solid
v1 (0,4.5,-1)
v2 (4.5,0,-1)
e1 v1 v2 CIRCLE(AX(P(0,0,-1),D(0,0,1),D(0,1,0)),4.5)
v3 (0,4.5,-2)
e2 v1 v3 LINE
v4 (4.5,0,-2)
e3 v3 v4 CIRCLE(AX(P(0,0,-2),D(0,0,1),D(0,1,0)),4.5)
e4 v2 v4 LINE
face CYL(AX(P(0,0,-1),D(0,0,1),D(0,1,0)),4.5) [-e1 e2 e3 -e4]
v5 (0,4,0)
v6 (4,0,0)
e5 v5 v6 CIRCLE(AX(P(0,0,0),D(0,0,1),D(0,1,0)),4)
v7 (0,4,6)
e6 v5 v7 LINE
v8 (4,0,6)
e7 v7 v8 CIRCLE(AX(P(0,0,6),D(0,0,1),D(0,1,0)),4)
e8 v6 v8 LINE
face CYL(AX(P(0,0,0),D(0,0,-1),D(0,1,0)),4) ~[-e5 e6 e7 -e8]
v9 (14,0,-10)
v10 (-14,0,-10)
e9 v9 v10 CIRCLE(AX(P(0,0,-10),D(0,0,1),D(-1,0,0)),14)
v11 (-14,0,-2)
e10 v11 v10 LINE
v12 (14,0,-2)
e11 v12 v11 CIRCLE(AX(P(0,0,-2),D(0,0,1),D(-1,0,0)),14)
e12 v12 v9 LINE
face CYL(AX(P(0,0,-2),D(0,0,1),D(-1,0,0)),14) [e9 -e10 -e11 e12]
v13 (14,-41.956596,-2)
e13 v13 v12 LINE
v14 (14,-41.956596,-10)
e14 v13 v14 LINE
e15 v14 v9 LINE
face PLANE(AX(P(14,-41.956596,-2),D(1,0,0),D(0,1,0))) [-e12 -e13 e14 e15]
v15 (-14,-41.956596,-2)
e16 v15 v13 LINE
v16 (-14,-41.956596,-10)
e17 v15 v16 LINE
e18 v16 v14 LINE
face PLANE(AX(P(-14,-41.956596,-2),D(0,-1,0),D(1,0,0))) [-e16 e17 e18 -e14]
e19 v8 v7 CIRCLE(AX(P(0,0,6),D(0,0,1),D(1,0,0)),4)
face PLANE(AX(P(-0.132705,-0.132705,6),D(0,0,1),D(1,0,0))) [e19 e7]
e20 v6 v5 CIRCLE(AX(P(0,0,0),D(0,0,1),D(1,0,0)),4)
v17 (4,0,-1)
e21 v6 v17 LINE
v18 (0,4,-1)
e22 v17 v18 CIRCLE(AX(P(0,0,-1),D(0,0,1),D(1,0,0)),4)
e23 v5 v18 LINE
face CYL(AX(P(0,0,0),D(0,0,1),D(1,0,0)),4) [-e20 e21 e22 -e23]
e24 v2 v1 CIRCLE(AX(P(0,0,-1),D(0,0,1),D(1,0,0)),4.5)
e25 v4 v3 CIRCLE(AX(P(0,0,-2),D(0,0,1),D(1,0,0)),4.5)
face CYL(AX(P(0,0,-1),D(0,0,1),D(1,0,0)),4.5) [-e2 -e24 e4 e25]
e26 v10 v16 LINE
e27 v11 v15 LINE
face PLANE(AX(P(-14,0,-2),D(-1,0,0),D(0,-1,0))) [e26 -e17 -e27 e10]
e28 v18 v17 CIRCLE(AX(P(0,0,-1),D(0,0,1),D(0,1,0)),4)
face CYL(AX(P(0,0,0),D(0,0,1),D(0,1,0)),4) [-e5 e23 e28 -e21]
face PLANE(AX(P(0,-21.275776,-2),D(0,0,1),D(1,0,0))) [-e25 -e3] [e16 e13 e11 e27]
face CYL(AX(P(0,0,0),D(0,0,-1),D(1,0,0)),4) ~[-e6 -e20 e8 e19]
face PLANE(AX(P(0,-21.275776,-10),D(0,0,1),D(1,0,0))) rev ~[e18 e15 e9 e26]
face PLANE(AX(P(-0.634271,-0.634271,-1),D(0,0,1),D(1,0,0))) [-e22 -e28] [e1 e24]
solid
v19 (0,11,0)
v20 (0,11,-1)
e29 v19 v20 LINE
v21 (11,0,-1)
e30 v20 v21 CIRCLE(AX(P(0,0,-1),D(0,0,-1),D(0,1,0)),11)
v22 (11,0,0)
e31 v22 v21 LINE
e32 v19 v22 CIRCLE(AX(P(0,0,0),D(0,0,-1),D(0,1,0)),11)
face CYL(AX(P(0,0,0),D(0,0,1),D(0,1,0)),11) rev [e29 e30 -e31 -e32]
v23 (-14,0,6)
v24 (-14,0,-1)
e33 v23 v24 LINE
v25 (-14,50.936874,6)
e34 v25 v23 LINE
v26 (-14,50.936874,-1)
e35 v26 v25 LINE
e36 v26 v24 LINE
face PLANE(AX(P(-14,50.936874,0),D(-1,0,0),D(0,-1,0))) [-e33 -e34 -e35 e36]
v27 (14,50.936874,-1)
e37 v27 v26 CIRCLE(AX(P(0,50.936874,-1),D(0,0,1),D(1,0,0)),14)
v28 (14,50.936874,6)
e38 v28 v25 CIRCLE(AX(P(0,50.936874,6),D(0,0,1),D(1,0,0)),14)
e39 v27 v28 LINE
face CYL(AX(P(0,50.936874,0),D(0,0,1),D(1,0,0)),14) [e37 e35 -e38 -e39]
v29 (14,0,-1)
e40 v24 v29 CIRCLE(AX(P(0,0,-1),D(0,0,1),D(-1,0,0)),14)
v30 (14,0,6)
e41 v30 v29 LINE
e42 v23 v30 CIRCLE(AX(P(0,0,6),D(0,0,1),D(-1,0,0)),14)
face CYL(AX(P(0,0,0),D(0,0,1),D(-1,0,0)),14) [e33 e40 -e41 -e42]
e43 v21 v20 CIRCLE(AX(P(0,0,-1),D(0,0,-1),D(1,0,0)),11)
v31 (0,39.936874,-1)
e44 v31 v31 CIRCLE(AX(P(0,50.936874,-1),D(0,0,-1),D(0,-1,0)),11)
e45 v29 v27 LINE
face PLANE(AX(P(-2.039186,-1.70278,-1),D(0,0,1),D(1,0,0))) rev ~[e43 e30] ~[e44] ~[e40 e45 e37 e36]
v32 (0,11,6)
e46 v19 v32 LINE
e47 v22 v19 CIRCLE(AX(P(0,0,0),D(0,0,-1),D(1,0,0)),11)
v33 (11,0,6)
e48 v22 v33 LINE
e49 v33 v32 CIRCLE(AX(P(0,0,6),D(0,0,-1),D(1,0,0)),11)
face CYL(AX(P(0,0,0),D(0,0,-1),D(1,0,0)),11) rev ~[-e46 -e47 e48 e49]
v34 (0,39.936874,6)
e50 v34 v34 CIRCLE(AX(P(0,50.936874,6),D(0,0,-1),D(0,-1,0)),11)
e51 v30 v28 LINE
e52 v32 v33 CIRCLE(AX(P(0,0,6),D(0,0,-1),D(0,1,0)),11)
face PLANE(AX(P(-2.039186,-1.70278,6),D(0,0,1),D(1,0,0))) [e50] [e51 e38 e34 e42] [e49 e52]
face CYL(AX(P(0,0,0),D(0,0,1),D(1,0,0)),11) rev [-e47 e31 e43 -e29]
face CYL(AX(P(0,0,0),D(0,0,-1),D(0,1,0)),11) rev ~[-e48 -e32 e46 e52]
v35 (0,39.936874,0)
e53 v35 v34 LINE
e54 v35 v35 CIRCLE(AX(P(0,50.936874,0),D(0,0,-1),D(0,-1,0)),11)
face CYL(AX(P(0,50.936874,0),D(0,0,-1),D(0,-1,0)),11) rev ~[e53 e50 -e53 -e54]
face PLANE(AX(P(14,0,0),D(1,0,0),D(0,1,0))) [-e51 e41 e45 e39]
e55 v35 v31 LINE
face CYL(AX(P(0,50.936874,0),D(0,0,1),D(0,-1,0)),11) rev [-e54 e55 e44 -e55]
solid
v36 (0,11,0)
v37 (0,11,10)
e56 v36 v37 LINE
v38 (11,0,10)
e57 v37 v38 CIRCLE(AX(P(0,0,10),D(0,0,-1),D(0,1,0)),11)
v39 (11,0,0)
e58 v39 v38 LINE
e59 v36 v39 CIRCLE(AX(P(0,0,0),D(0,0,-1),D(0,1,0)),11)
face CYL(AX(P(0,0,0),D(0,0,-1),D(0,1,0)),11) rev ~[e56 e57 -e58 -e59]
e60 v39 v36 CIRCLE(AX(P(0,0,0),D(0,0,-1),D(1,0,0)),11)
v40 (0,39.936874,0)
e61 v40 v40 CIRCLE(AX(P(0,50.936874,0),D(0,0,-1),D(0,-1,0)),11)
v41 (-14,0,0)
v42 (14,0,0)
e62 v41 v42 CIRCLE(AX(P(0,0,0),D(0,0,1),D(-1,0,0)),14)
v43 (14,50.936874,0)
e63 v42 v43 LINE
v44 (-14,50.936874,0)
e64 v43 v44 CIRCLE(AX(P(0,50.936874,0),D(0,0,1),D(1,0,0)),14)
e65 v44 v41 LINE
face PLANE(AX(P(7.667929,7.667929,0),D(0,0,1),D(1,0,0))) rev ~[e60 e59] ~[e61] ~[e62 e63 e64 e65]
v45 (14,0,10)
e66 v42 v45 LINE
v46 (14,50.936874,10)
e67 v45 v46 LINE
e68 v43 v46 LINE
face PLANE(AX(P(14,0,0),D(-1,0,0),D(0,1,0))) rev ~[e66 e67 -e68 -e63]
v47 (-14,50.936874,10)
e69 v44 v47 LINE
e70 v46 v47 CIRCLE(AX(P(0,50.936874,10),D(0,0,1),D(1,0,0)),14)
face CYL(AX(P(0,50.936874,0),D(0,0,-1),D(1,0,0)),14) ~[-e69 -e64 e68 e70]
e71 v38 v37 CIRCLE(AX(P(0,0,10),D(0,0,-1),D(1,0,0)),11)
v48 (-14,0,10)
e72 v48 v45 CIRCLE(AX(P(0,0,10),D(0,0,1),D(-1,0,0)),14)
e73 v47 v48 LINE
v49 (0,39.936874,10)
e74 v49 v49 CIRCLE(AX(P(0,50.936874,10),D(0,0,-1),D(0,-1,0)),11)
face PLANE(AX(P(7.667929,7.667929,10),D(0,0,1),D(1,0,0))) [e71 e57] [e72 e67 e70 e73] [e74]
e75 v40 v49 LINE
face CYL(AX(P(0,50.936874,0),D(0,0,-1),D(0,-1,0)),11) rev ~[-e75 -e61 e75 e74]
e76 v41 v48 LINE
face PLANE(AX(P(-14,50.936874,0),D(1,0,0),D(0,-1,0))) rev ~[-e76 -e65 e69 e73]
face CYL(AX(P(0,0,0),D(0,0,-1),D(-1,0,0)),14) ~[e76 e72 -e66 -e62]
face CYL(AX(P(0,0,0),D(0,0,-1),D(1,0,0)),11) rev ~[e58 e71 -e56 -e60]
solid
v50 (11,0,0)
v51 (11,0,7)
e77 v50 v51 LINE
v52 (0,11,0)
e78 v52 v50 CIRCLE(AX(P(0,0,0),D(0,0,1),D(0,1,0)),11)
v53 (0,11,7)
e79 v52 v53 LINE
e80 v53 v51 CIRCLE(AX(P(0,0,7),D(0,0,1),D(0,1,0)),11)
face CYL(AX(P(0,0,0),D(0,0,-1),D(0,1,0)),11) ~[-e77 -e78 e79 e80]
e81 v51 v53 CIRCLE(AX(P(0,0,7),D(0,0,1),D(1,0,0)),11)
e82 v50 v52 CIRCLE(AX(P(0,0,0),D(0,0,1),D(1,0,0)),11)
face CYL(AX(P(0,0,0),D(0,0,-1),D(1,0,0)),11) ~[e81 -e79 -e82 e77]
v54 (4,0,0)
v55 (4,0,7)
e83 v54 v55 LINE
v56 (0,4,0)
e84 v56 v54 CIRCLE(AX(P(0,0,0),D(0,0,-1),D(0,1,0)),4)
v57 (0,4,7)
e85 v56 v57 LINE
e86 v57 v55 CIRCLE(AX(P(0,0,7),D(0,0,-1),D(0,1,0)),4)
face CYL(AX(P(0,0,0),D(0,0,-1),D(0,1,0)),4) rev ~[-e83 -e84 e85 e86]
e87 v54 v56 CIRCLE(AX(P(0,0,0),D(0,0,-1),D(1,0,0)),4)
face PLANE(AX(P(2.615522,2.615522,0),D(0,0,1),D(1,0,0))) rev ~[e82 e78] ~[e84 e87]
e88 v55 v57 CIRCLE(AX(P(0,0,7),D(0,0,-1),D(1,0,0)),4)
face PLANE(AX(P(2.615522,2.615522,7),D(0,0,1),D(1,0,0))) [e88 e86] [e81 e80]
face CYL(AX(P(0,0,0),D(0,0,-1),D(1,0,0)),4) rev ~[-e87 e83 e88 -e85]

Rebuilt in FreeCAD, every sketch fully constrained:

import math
import FreeCAD as App
import Part
import Sketcher

V = App.Vector

doc = App.newDocument("Part")
params = doc.addObject("Spreadsheet::Sheet", "Params")
for row, (alias, value) in enumerate([
    ("sketch1_radius", "11 mm"),
    ("sketch1_radius2", "4 mm"),
    ("pad1_length", "7 mm"),
    ("sketch2_diameter", "22 mm"),
    ("sketch2_radius", "14 mm"),
    ("pad2_length", "10 mm"),
    ("sketch3_radius", "4 mm"),
    ("pad3_length", "6 mm"),
    ("pad3_length2", "1 mm"),
    ("sketch4_radius", "4.5 mm"),
    ("pad4_length", "6.2 mm"),
    ("sketch5_diameter", "28 mm"),
    ("pad5_length", "8 mm"),
    ("sketch6_radius", "14 mm"),
    ("pad6_length", "8 mm"),
    ("sketch7_diameter", "22 mm"),
    ("sketch7_radius", "14 mm"),
    ("pad7_length", "6 mm"),
    ("pad7_length2", "1 mm"),
], start=1):
    params.set(f"A{row}", alias)
    params.set(f"B{row}", "=" + value)
    params.setAlias(f"B{row}", alias)

body = doc.addObject("PartDesign::Body", "Body")

# Sketch on XY plane
sketch1 = doc.addObject("Sketcher::SketchObject", "Sketch")
body.addObject(sketch1)
sketch1.AttachmentSupport = (doc.XY_Plane, [""])
sketch1.MapMode = "FlatFace"
sketch1.addGeometry([
    Part.ArcOfCircle(Part.Circle(V(0, 0, 0), V(0, 0, 1), 11), math.radians(0), math.radians(90)),
    Part.ArcOfCircle(Part.Circle(V(0, 0, 0), V(0, 0, 1), 11), math.radians(90), math.radians(360)),
    Part.ArcOfCircle(Part.Circle(V(0, 0, 0), V(0, 0, 1), 4), math.radians(0), math.radians(90)),
    Part.ArcOfCircle(Part.Circle(V(0, 0, 0), V(0, 0, 1), 4), math.radians(90), math.radians(360)),
], False)
sketch1.addConstraint([
    Sketcher.Constraint("Tangent", 0, 1, 1, 2),
    Sketcher.Constraint("Coincident", 1, 1, 0, 2),
    Sketcher.Constraint("Tangent", 2, 1, 3, 2),
    Sketcher.Constraint("Coincident", 3, 1, 2, 2),
    Sketcher.Constraint("Coincident", 0, 3, -1, 1),
    Sketcher.Constraint("Coincident", 2, 3, -1, 1),
    Sketcher.Constraint("PointOnObject", 0, 1, -1),
    Sketcher.Constraint("PointOnObject", 1, 1, -2),
    Sketcher.Constraint("PointOnObject", 2, 1, -1),
    Sketcher.Constraint("PointOnObject", 3, 1, -2),
    Sketcher.Constraint("Radius", 0, 11.0),
    Sketcher.Constraint("Radius", 2, 4.0),
])
sketch1.setExpression("Constraints[10]", "Params.sketch1_radius")
sketch1.setExpression("Constraints[11]", "Params.sketch1_radius2")
pad1 = doc.addObject("PartDesign::Pad", "Pad")
body.addObject(pad1)
pad1.Profile = sketch1
pad1.setExpression("Length", "Params.pad1_length")
body2 = doc.addObject("PartDesign::Body", "Body001")

# Sketch on XY plane
sketch2 = doc.addObject("Sketcher::SketchObject", "Sketch001")
body2.addObject(sketch2)
sketch2.AttachmentSupport = (doc.getObject("XY_Plane001"), [""])
sketch2.MapMode = "FlatFace"
sketch2.addGeometry([
    Part.ArcOfCircle(Part.Circle(V(0, 51, 0), V(0, 0, 1), 14), math.radians(0), math.radians(180)),  # 0
    Part.LineSegment(V(-14, 51, 0), V(-14, 0, 0)),  # 1
    Part.ArcOfCircle(Part.Circle(V(0, 0, 0), V(0, 0, 1), 14), math.radians(180), math.radians(360)),  # 2
    Part.LineSegment(V(14, 0, 0), V(14, 51, 0)),  # 3
    Part.ArcOfCircle(Part.Circle(V(0, 0, 0), V(0, 0, 1), 11), math.radians(0), math.radians(90)),  # 4
    Part.ArcOfCircle(Part.Circle(V(0, 0, 0), V(0, 0, 1), 11), math.radians(90), math.radians(360)),  # 5
    Part.Circle(V(0, 51, 0), V(0, 0, 1), 11),  # 6
], False)
sketch2.addConstraint([
    Sketcher.Constraint("Tangent", 0, 2, 1, 1),
    Sketcher.Constraint("Tangent", 1, 2, 2, 1),
    Sketcher.Constraint("Tangent", 2, 2, 3, 1),
    Sketcher.Constraint("Tangent", 3, 2, 0, 1),
    Sketcher.Constraint("Tangent", 4, 1, 5, 2),
    Sketcher.Constraint("Coincident", 5, 1, 4, 2),
    Sketcher.Constraint("Vertical", 1),
    Sketcher.Constraint("Vertical", 3),
    Sketcher.Constraint("Coincident", 2, 3, -1, 1),
    Sketcher.Constraint("Coincident", 4, 3, -1, 1),
    Sketcher.Constraint("Coincident", 6, 3, 0, 3),
    Sketcher.Constraint("Equal", 5, 6),
    Sketcher.Constraint("PointOnObject", 4, 1, -1),
    Sketcher.Constraint("PointOnObject", 5, 1, -2),
    Sketcher.Constraint("Diameter", 6, 22.0),
    Sketcher.Constraint("Radius", 0, 14.0),
    Sketcher.Constraint("DistanceY", 1, 2, 1, 1, 50.936874),
])
sketch2.setExpression("Constraints[14]", "Params.sketch2_diameter")
sketch2.setExpression("Constraints[15]", "Params.sketch2_radius")
pad2 = doc.addObject("PartDesign::Pad", "Pad001")
body2.addObject(pad2)
pad2.Profile = sketch2
pad2.setExpression("Length", "Params.pad2_length")
body3 = doc.addObject("PartDesign::Body", "Body002")

# Sketch on XY plane
sketch3 = doc.addObject("Sketcher::SketchObject", "Sketch002")
body3.addObject(sketch3)
sketch3.AttachmentSupport = (doc.getObject("XY_Plane002"), [""])
sketch3.MapMode = "FlatFace"
sketch3.addGeometry([
    Part.ArcOfCircle(Part.Circle(V(0, 0, 0), V(0, 0, 1), 4), math.radians(90), math.radians(360)),
    Part.ArcOfCircle(Part.Circle(V(0, 0, 0), V(0, 0, 1), 4), math.radians(0), math.radians(90)),
], False)
sketch3.addConstraint([
    Sketcher.Constraint("Tangent", 0, 1, 1, 2),
    Sketcher.Constraint("Coincident", 1, 1, 0, 2),
    Sketcher.Constraint("Coincident", 0, 3, -1, 1),
    Sketcher.Constraint("PointOnObject", 0, 1, -2),
    Sketcher.Constraint("PointOnObject", 1, 1, -1),
    Sketcher.Constraint("Radius", 0, 4.0),
])
sketch3.setExpression("Constraints[5]", "Params.sketch3_radius")
pad3 = doc.addObject("PartDesign::Pad", "Pad002")
body3.addObject(pad3)
pad3.Profile = sketch3
pad3.Type = "TwoLengths"
pad3.setExpression("Length", "Params.pad3_length")
pad3.setExpression("Length2", "Params.pad3_length2")

# Sketch on XY plane
sketch4 = doc.addObject("Sketcher::SketchObject", "Sketch003")
body3.addObject(sketch4)
sketch4.AttachmentSupport = (doc.getObject("XY_Plane002"), [""])
sketch4.MapMode = "FlatFace"
sketch4.AttachmentOffset = App.Placement(V(0, 0, -1), App.Rotation())
sketch4.addGeometry([
    Part.ArcOfCircle(Part.Circle(V(0, 0, 0), V(0, 0, 1), 4.5), math.radians(90), math.radians(360)),
    Part.ArcOfCircle(Part.Circle(V(0, 0, 0), V(0, 0, 1), 4.5), math.radians(0), math.radians(90)),
], False)
sketch4.addConstraint([
    Sketcher.Constraint("Tangent", 0, 1, 1, 2),
    Sketcher.Constraint("Coincident", 1, 1, 0, 2),
    Sketcher.Constraint("Coincident", 0, 3, -1, 1),
    Sketcher.Constraint("PointOnObject", 0, 1, -2),
    Sketcher.Constraint("PointOnObject", 1, 1, -1),
    Sketcher.Constraint("Radius", 0, 4.5),
])
sketch4.setExpression("Constraints[5]", "Params.sketch4_radius")
pad4 = doc.addObject("PartDesign::Pad", "Pad003")
body3.addObject(pad4)
pad4.Profile = sketch4
pad4.setExpression("Length", "Params.pad4_length")
pad4.Reversed = True

# Sketch on XY plane
sketch5 = doc.addObject("Sketcher::SketchObject", "Sketch004")
body3.addObject(sketch5)
sketch5.AttachmentSupport = (doc.getObject("XY_Plane002"), [""])
sketch5.MapMode = "FlatFace"
sketch5.AttachmentOffset = App.Placement(V(0, 0, -2), App.Rotation())
sketch5.addGeometry(Part.Circle(V(0, 0, 0), V(0, 0, 1), 14), False)
sketch5.addConstraint([
    Sketcher.Constraint("Coincident", 0, 3, -1, 1),
    Sketcher.Constraint("Diameter", 0, 28.0),
])
sketch5.setExpression("Constraints[1]", "Params.sketch5_diameter")
pad5 = doc.addObject("PartDesign::Pad", "Pad004")
body3.addObject(pad5)
pad5.Profile = sketch5
pad5.setExpression("Length", "Params.pad5_length")
pad5.Reversed = True

# Sketch on XY plane
sketch6 = doc.addObject("Sketcher::SketchObject", "Sketch005")
body3.addObject(sketch6)
sketch6.AttachmentSupport = (doc.getObject("XY_Plane002"), [""])
sketch6.MapMode = "FlatFace"
sketch6.AttachmentOffset = App.Placement(V(0, 0, -2), App.Rotation())
sketch6.addGeometry([
    Part.LineSegment(V(14, -42, 0), V(14, 0, 0)),
    Part.ArcOfCircle(Part.Circle(V(0, 0, 0), V(0, 0, 1), 14), math.radians(180), math.radians(360)),
    Part.LineSegment(V(-14, 0, 0), V(-14, -42, 0)),
    Part.LineSegment(V(-14, -42, 0), V(14, -42, 0)),
], False)
sketch6.addConstraint([
    Sketcher.Constraint("Tangent", 0, 2, 1, 2),
    Sketcher.Constraint("Tangent", 1, 1, 2, 1),
    Sketcher.Constraint("Coincident", 2, 2, 3, 1),
    Sketcher.Constraint("Coincident", 3, 2, 0, 1),
    Sketcher.Constraint("Vertical", 0),
    Sketcher.Constraint("Vertical", 2),
    Sketcher.Constraint("Horizontal", 3),
    Sketcher.Constraint("Coincident", 1, 3, -1, 1),
    Sketcher.Constraint("Radius", 1, 14.0),
    Sketcher.Constraint("DistanceY", 0, 1, 0, 2, 41.956596),
])
sketch6.setExpression("Constraints[8]", "Params.sketch6_radius")
pad6 = doc.addObject("PartDesign::Pad", "Pad005")
body3.addObject(pad6)
pad6.Profile = sketch6
pad6.setExpression("Length", "Params.pad6_length")
pad6.Reversed = True
body4 = doc.addObject("PartDesign::Body", "Body003")

# Sketch on XY plane
sketch7 = doc.addObject("Sketcher::SketchObject", "Sketch006")
body4.addObject(sketch7)
sketch7.AttachmentSupport = (doc.getObject("XY_Plane003"), [""])
sketch7.MapMode = "FlatFace"
sketch7.addGeometry([
    Part.LineSegment(V(14, 0, 0), V(14, 51, 0)),  # 0
    Part.ArcOfCircle(Part.Circle(V(0, 51, 0), V(0, 0, 1), 14), math.radians(0), math.radians(180)),  # 1
    Part.LineSegment(V(-14, 51, 0), V(-14, 0, 0)),  # 2
    Part.ArcOfCircle(Part.Circle(V(0, 0, 0), V(0, 0, 1), 14), math.radians(180), math.radians(360)),  # 3
    Part.ArcOfCircle(Part.Circle(V(0, 0, 0), V(0, 0, 1), 11), math.radians(90), math.radians(360)),  # 4
    Part.ArcOfCircle(Part.Circle(V(0, 0, 0), V(0, 0, 1), 11), math.radians(0), math.radians(90)),  # 5
    Part.Circle(V(0, 51, 0), V(0, 0, 1), 11),  # 6
], False)
sketch7.addConstraint([
    Sketcher.Constraint("Tangent", 0, 2, 1, 1),
    Sketcher.Constraint("Tangent", 1, 2, 2, 1),
    Sketcher.Constraint("Tangent", 2, 2, 3, 1),
    Sketcher.Constraint("Tangent", 3, 2, 0, 1),
    Sketcher.Constraint("Tangent", 4, 1, 5, 2),
    Sketcher.Constraint("Coincident", 5, 1, 4, 2),
    Sketcher.Constraint("Vertical", 0),
    Sketcher.Constraint("Vertical", 2),
    Sketcher.Constraint("Coincident", 3, 3, -1, 1),
    Sketcher.Constraint("Coincident", 4, 3, -1, 1),
    Sketcher.Constraint("Coincident", 6, 3, 1, 3),
    Sketcher.Constraint("Equal", 5, 6),
    Sketcher.Constraint("PointOnObject", 4, 1, -2),
    Sketcher.Constraint("PointOnObject", 5, 1, -1),
    Sketcher.Constraint("Diameter", 6, 22.0),
    Sketcher.Constraint("Radius", 1, 14.0),
    Sketcher.Constraint("DistanceY", 0, 1, 0, 2, 50.936874),
])
sketch7.setExpression("Constraints[14]", "Params.sketch7_diameter")
sketch7.setExpression("Constraints[15]", "Params.sketch7_radius")
pad7 = doc.addObject("PartDesign::Pad", "Pad006")
body4.addObject(pad7)
pad7.Profile = sketch7
pad7.Type = "TwoLengths"
pad7.setExpression("Length", "Params.pad7_length")
pad7.setExpression("Length2", "Params.pad7_length2")

doc.recompute()
